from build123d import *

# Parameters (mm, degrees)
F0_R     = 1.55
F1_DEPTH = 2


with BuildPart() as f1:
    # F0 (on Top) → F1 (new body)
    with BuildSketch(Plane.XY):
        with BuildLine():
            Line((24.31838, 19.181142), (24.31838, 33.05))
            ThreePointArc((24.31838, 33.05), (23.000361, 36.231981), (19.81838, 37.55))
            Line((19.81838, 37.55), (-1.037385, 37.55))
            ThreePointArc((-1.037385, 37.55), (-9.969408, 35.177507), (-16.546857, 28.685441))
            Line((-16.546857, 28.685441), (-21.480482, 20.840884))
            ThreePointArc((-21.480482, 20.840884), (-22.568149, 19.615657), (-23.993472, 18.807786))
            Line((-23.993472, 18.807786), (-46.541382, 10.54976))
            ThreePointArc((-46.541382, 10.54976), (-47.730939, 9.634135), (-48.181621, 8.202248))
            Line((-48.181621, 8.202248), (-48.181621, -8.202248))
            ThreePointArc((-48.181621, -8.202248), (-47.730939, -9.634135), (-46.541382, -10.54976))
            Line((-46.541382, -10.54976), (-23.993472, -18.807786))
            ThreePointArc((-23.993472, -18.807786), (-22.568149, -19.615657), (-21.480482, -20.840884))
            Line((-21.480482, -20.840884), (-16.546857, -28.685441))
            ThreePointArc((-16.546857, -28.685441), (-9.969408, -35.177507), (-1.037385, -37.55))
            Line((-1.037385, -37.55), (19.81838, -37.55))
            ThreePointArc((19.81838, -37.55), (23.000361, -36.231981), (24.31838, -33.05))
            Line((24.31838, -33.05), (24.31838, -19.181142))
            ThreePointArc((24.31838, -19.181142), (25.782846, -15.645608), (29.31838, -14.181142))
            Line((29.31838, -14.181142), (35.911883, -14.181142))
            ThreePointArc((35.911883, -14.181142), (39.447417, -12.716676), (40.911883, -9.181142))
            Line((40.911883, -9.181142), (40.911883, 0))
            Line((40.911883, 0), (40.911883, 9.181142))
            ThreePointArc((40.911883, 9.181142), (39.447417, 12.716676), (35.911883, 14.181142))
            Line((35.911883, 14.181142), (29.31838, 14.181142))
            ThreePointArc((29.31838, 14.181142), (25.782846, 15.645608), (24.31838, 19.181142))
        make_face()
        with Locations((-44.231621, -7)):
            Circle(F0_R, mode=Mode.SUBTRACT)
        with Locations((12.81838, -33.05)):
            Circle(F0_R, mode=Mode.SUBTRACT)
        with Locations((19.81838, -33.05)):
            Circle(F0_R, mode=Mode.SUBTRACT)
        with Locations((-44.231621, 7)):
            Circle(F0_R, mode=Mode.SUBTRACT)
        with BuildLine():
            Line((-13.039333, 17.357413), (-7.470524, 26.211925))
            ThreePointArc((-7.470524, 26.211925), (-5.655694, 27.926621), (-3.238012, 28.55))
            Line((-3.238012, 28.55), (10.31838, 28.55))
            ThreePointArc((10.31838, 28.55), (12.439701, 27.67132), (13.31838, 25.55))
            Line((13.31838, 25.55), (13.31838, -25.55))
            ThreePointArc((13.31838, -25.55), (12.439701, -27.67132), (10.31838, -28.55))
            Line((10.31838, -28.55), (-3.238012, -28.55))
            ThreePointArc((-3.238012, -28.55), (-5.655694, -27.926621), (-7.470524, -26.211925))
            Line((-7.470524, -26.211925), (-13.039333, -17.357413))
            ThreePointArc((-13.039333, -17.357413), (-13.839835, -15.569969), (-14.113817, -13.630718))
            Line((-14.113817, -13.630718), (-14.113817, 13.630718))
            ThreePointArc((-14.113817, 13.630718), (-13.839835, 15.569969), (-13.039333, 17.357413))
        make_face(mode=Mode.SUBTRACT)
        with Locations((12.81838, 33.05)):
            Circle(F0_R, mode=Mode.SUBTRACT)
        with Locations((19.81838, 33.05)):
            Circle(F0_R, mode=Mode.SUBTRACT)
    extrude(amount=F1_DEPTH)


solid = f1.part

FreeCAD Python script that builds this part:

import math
import FreeCAD as App
import Part
import Sketcher
from FreeCAD import Vector
Q = App.Units.Quantity

doc = App.newDocument("Part")
body = doc.addObject("PartDesign::Body", "Body")

sketch1 = body.newObject("Sketcher::SketchObject", "Sketch")
sketch1.AttachmentSupport = (doc.getObject("XY_Plane"), [""])
sketch1.MapMode = "FlatFace"
sketch1.addGeometry([
    Part.LineSegment(Vector(24.31838, 19.181142, 0), Vector(24.31838, 33.05, 0)),
    Part.ArcOfCircle(Part.Circle(Vector(19.818382, 33.050002, 0), Vector(0, 0, 1), 4.499998), math.radians(-0.000021), math.radians(90.000021)),
    Part.LineSegment(Vector(19.81838, 37.55, 0), Vector(-1.037385, 37.55, 0)),
    Part.ArcOfCircle(Part.Circle(Vector(-1.037386, 19.550001, 0), Vector(0, 0, 1), 17.999999), math.radians(89.999997), math.radians(149.500924)),
    Part.LineSegment(Vector(-16.546857, 28.685441, 0), Vector(-21.480482, 20.840884, 0)),
    Part.ArcOfCircle(Part.Circle(Vector(-25.712992, 23.502808, 0), Vector(0, 0, 1), 4.999998), math.radians(-69.885085), math.radians(-32.166742)),
    Part.LineSegment(Vector(-23.993472, 18.807786, 0), Vector(-46.541382, 10.54976, 0)),
    Part.ArcOfCircle(Part.Circle(Vector(-45.681624, 8.202251, 0), Vector(0, 0, 1), 2.499997), math.radians(110.114877), math.radians(180.000061)),
    Part.LineSegment(Vector(-48.181621, 8.202248, 0), Vector(-48.181621, -8.202248, 0)),
    Part.ArcOfCircle(Part.Circle(Vector(-45.681624, -8.202251, 0), Vector(0, 0, 1), 2.499997), math.radians(179.999939), math.radians(249.885123)),
    Part.LineSegment(Vector(-46.541382, -10.54976, 0), Vector(-23.993472, -18.807786, 0)),
    Part.ArcOfCircle(Part.Circle(Vector(-25.712992, -23.502808, 0), Vector(0, 0, 1), 4.999998), math.radians(32.166742), math.radians(69.885085)),
    Part.LineSegment(Vector(-21.480482, -20.840884, 0), Vector(-16.546857, -28.685441, 0)),
    Part.ArcOfCircle(Part.Circle(Vector(-1.037386, -19.550001, 0), Vector(0, 0, 1), 17.999999), math.radians(-149.500924), math.radians(-89.999997)),
    Part.LineSegment(Vector(-1.037385, -37.55, 0), Vector(19.81838, -37.55, 0)),
    Part.ArcOfCircle(Part.Circle(Vector(19.818382, -33.050002, 0), Vector(0, 0, 1), 4.499998), math.radians(-90.000021), math.radians(0.000021)),
    Part.LineSegment(Vector(24.31838, -33.05, 0), Vector(24.31838, -19.181142, 0)),
    Part.ArcOfCircle(Part.Circle(Vector(29.31838, -19.181142, 0), Vector(0, 0, 1), 5), math.radians(89.999996), math.radians(180.000004)),
    Part.LineSegment(Vector(29.31838, -14.181142, 0), Vector(35.911883, -14.181142, 0)),
    Part.ArcOfCircle(Part.Circle(Vector(35.911883, -9.181142, 0), Vector(0, 0, 1), 5), math.radians(-90.000004), math.radians(0.000004)),
    Part.LineSegment(Vector(40.911883, -9.181142, 0), Vector(40.911883, 9.181142, 0)),
    Part.ArcOfCircle(Part.Circle(Vector(35.911883, 9.181142, 0), Vector(0, 0, 1), 5), math.radians(-0.000004), math.radians(90.000004)),
    Part.LineSegment(Vector(35.911883, 14.181142, 0), Vector(29.31838, 14.181142, 0)),
    Part.ArcOfCircle(Part.Circle(Vector(29.31838, 19.181142, 0), Vector(0, 0, 1), 5), math.radians(179.999996), math.radians(270.000004)),
    Part.Circle(Vector(-44.231621, -7, 0), Vector(0, 0, 1), 1.55),
    Part.Circle(Vector(12.81838, -33.05, 0), Vector(0, 0, 1), 1.55),
    Part.Circle(Vector(19.81838, -33.05, 0), Vector(0, 0, 1), 1.55),
    Part.Circle(Vector(-44.231621, 7, 0), Vector(0, 0, 1), 1.55),
    Part.ArcOfCircle(Part.Circle(Vector(-7.113843, 13.630725, 0), Vector(0, 0, 1), 6.999974), math.radians(147.833191), math.radians(180.000057)),
    Part.LineSegment(Vector(-13.039333, 17.357413, 0), Vector(-7.470524, 26.211925, 0)),
    Part.ArcOfCircle(Part.Circle(Vector(-3.238011, 23.549997, 0), Vector(0, 0, 1), 5.000003), math.radians(90.000014), math.radians(147.833241)),
    Part.LineSegment(Vector(-3.238012, 28.55, 0), Vector(10.31838, 28.55, 0)),
    Part.ArcOfCircle(Part.Circle(Vector(10.318381, 25.550001, 0), Vector(0, 0, 1), 2.999999), math.radians(-0.00001), math.radians(90.00001)),
    Part.LineSegment(Vector(13.31838, 25.55, 0), Vector(13.31838, -25.55, 0)),
    Part.ArcOfCircle(Part.Circle(Vector(10.318381, -25.550001, 0), Vector(0, 0, 1), 2.999999), math.radians(-90.00001), math.radians(0.00001)),
    Part.LineSegment(Vector(10.31838, -28.55, 0), Vector(-3.238012, -28.55, 0)),
    Part.ArcOfCircle(Part.Circle(Vector(-3.238011, -23.549997, 0), Vector(0, 0, 1), 5.000003), math.radians(-147.833241), math.radians(-90.000014)),
    Part.LineSegment(Vector(-7.470524, -26.211925, 0), Vector(-13.039333, -17.357413, 0)),
    Part.ArcOfCircle(Part.Circle(Vector(-7.113843, -13.630725, 0), Vector(0, 0, 1), 6.999974), math.radians(179.999943), math.radians(212.166809)),
    Part.LineSegment(Vector(-14.113817, -13.630718, 0), Vector(-14.113817, 13.630718, 0)),
    Part.Circle(Vector(12.81838, 33.05, 0), Vector(0, 0, 1), 1.55),
    Part.Circle(Vector(19.81838, 33.05, 0), Vector(0, 0, 1), 1.55),
], False)
sketch1.addConstraint([
    Sketcher.Constraint("Coincident", 0, 2, 1, 1),
    Sketcher.Constraint("Coincident", 1, 2, 2, 1),
    Sketcher.Constraint("Coincident", 2, 2, 3, 1),
    Sketcher.Constraint("Coincident", 3, 2, 4, 1),
    Sketcher.Constraint("Coincident", 4, 2, 5, 2),
    Sketcher.Constraint("Coincident", 5, 1, 6, 1),
    Sketcher.Constraint("Coincident", 6, 2, 7, 1),
    Sketcher.Constraint("Coincident", 7, 2, 8, 1),
    Sketcher.Constraint("Coincident", 8, 2, 9, 1),
    Sketcher.Constraint("Coincident", 9, 2, 10, 1),
    Sketcher.Constraint("Coincident", 10, 2, 11, 2),
    Sketcher.Constraint("Coincident", 11, 1, 12, 1),
    Sketcher.Constraint("Coincident", 12, 2, 13, 1),
    Sketcher.Constraint("Coincident", 13, 2, 14, 1),
    Sketcher.Constraint("Coincident", 14, 2, 15, 1),
    Sketcher.Constraint("Coincident", 15, 2, 16, 1),
    Sketcher.Constraint("Coincident", 16, 2, 17, 2),
    Sketcher.Constraint("Coincident", 17, 1, 18, 1),
    Sketcher.Constraint("Coincident", 18, 2, 19, 1),
    Sketcher.Constraint("Coincident", 19, 2, 20, 1),
    Sketcher.Constraint("Coincident", 20, 2, 21, 1),
    Sketcher.Constraint("Coincident", 21, 2, 22, 1),
    Sketcher.Constraint("Coincident", 22, 2, 23, 2),
    Sketcher.Constraint("Coincident", 23, 1, 0, 1),
    Sketcher.Constraint("Coincident", 28, 1, 29, 1),
    Sketcher.Constraint("Coincident", 29, 2, 30, 2),
    Sketcher.Constraint("Coincident", 30, 1, 31, 1),
    Sketcher.Constraint("Coincident", 31, 2, 32, 2),
    Sketcher.Constraint("Coincident", 32, 1, 33, 1),
    Sketcher.Constraint("Coincident", 33, 2, 34, 2),
    Sketcher.Constraint("Coincident", 34, 1, 35, 1),
    Sketcher.Constraint("Coincident", 35, 2, 36, 2),
    Sketcher.Constraint("Coincident", 36, 1, 37, 1),
    Sketcher.Constraint("Coincident", 37, 2, 38, 2),
    Sketcher.Constraint("Coincident", 38, 1, 39, 1),
    Sketcher.Constraint("Coincident", 39, 2, 28, 2),
    Sketcher.Constraint("Vertical", 0),
    Sketcher.Constraint("Horizontal", 2),
    Sketcher.Constraint("Vertical", 8),
    Sketcher.Constraint("Horizontal", 14),
    Sketcher.Constraint("Vertical", 16),
    Sketcher.Constraint("Horizontal", 18),
    Sketcher.Constraint("Vertical", 20),
    Sketcher.Constraint("Horizontal", 22),
    Sketcher.Constraint("Horizontal", 31),
    Sketcher.Constraint("Vertical", 33),
    Sketcher.Constraint("Horizontal", 35),
    Sketcher.Constraint("Vertical", 39),
    Sketcher.Constraint("Coincident", 26, 3, 15, 3),
    Sketcher.Constraint("Coincident", 41, 3, 1, 3),
    Sketcher.Constraint("Radius", 3, Q("17.999999 mm")),
    Sketcher.Constraint("Radius", 5, Q("4.999998 mm")),
    Sketcher.Constraint("Radius", 11, Q("4.999998 mm")),
    Sketcher.Constraint("Radius", 13, Q("17.999999 mm")),
    Sketcher.Constraint("Radius", 17, Q("5 mm")),
    Sketcher.Constraint("Radius", 19, Q("5 mm")),
    Sketcher.Constraint("Radius", 21, Q("5 mm")),
    Sketcher.Constraint("Radius", 23, Q("5 mm")),
    Sketcher.Constraint("Radius", 32, Q("2.999999 mm")),
    Sketcher.Constraint("Radius", 34, Q("2.999999 mm")),
    Sketcher.Constraint("Diameter", 24, Q("3.1 mm")),
    Sketcher.Constraint("Diameter", 25, Q("3.1 mm")),
    Sketcher.Constraint("Diameter", 26, Q("3.1 mm")),
    Sketcher.Constraint("Diameter", 27, Q("3.1 mm")),
    Sketcher.Constraint("Diameter", 40, Q("3.1 mm")),
    Sketcher.Constraint("Diameter", 41, Q("3.1 mm")),
    Sketcher.Constraint("Radius", 1, Q("4.499998 mm")),
    Sketcher.Constraint("Radius", 15, Q("4.499998 mm")),
    Sketcher.Constraint("DistanceY", 33, 2, 33, 1, Q("51.1 mm")),
    Sketcher.Constraint("DistanceY", 24, 3, -1, 1, Q("7 mm")),
    Sketcher.Constraint("DistanceY", -1, 1, 27, 3, Q("7 mm")),
    Sketcher.Constraint("DistanceX", 25, 3, 15, 3, Q("7.000002 mm")),
    Sketcher.Constraint("DistanceY", 3, 3, 32, 3, Q("5.999999 mm")),
    Sketcher.Constraint("DistanceX", 32, 3, 23, 3, Q("18.999999 mm")),
    Sketcher.Constraint("DistanceY", 34, 3, 13, 3, Q("5.999999 mm")),
    Sketcher.Constraint("DistanceX", 34, 3, 17, 3, Q("18.999999 mm")),
    Sketcher.Constraint("DistanceX", 40, 3, 1, 3, Q("7.000002 mm")),
    Sketcher.Constraint("DistanceX", 40, 3, 1, 2, Q("7 mm")),
    Sketcher.Constraint("DistanceX", 25, 3, 14, 2, Q("7 mm")),
    Sketcher.Constraint("DistanceY", 16, 2, 19, 3, Q("10 mm")),
    Sketcher.Constraint("DistanceX", 16, 2, 17, 1, Q("5 mm")),
    Sketcher.Constraint("DistanceX", 18, 2, 19, 2, Q("5 mm")),
    Sketcher.Constraint("DistanceY", 18, 2, 19, 2, Q("5 mm")),
    Sketcher.Constraint("DistanceY", 20, 2, 23, 3, Q("10 mm")),
    Sketcher.Constraint("DistanceX", 21, 2, 20, 2, Q("5 mm")),
    Sketcher.Constraint("DistanceX", 0, 2, 22, 2, Q("5 mm")),
    Sketcher.Constraint("DistanceY", 22, 2, 23, 1, Q("5 mm")),
    Sketcher.Constraint("DistanceX", 31, 2, 32, 1, Q("3 mm")),
    Sketcher.Constraint("DistanceY", 32, 1, 31, 2, Q("3 mm")),
    Sketcher.Constraint("DistanceX", 34, 1, 33, 2, Q("3 mm")),
    Sketcher.Constraint("DistanceY", 34, 1, 33, 2, Q("3 mm")),
    Sketcher.Constraint("DistanceY", 25, 3, 13, 3, Q("13.499999 mm")),
    Sketcher.Constraint("DistanceY", 32, 3, 40, 3, Q("7.499999 mm")),
    Sketcher.Constraint("DistanceY", 32, 3, 0, 2, Q("7.499999 mm")),
    Sketcher.Constraint("DistanceY", 14, 2, 15, 2, Q("4.5 mm")),
    Sketcher.Constraint("DistanceY", -1, 1, 1, 3, Q("33.050002 mm")),
    Sketcher.Constraint("DistanceX", 7, 2, 27, 3, Q("3.95 mm")),
    Sketcher.Constraint("DistanceX", 7, 2, 24, 3, Q("3.95 mm")),
    Sketcher.Constraint("Radius", 7, Q("2.499997 mm")),
    Sketcher.Constraint("Radius", 9, Q("2.499997 mm")),
    Sketcher.Constraint("Radius", 28, Q("6.999974 mm")),
    Sketcher.Constraint("Radius", 30, Q("5.000003 mm")),
    Sketcher.Constraint("Radius", 36, Q("5.000003 mm")),
    Sketcher.Constraint("Radius", 38, Q("6.999974 mm")),
    Sketcher.Constraint("DistanceX", 31, 1, 31, 2, Q("13.556392 mm")),
    Sketcher.Constraint("DistanceX", 35, 2, 35, 1, Q("13.556392 mm")),
    Sketcher.Constraint("DistanceY", 9, 3, 7, 3, Q("16.404501 mm")),
    Sketcher.Constraint("DistanceX", 15, 3, 19, 3, Q("16.093502 mm")),
    Sketcher.Constraint("DistanceY", 9, 3, 7, 2, Q("16.404499 mm")),
    Sketcher.Constraint("DistanceY", 8, 2, 7, 3, Q("16.404499 mm")),
    Sketcher.Constraint("DistanceY", 11, 1, 10, 2, Q("2.033098 mm")),
    Sketcher.Constraint("DistanceY", 28, 3, 29, 2, Q("12.5812 mm")),
    Sketcher.Constraint("DistanceY", 36, 1, 38, 3, Q("12.5812 mm")),
    Sketcher.Constraint("DistanceX", 2, 2, 2, 1, Q("20.855765 mm")),
    Sketcher.Constraint("DistanceX", 14, 1, 14, 2, Q("20.855765 mm")),
    Sketcher.Constraint("DistanceY", 0, 1, 0, 2, Q("13.868858 mm")),
    Sketcher.Constraint("DistanceY", 16, 1, 16, 2, Q("13.868858 mm")),
    Sketcher.Constraint("DistanceY", 39, 1, 39, 2, Q("27.261436 mm")),
    Sketcher.Constraint("DistanceX", -1, 1, 1, 3, Q("19.818382 mm")),
    Sketcher.Constraint("DistanceY", -1, 1, 5, 3, Q("23.502808 mm")),
    Sketcher.Constraint("DistanceY", -1, 1, 7, 3, Q("8.202251 mm")),
    Sketcher.Constraint("DistanceY", 11, 3, -1, 1, Q("23.502808 mm")),
    Sketcher.Constraint("DistanceX", 24, 3, -1, 1, Q("44.231621 mm")),
    Sketcher.Constraint("DistanceX", 30, 3, -1, 1, Q("3.238011 mm")),
    Sketcher.Constraint("DistanceX", 36, 3, -1, 1, Q("3.238011 mm")),
    Sketcher.Constraint("DistanceY", -1, 1, 3, 2, Q("28.685441 mm")),
    Sketcher.Constraint("DistanceX", 4, 2, -1, 1, Q("21.480482 mm")),
    Sketcher.Constraint("DistanceY", -1, 1, 6, 2, Q("10.54976 mm")),
    Sketcher.Constraint("DistanceX", 9, 2, -1, 1, Q("46.541382 mm")),
    Sketcher.Constraint("DistanceY", 12, 2, -1, 1, Q("28.685441 mm")),
    Sketcher.Constraint("DistanceX", 7, 3, 3, 3, Q("44.644238 mm")),
    Sketcher.Constraint("DistanceX", 9, 3, 13, 3, Q("44.644238 mm")),
    Sketcher.Constraint("DistanceX", 11, 3, 17, 3, Q("55.031372 mm")),
    Sketcher.Constraint("DistanceX", 24, 3, 5, 3, Q("18.518629 mm")),
    Sketcher.Constraint("DistanceX", 5, 3, 28, 3, Q("18.599149 mm")),
    Sketcher.Constraint("DistanceY", 38, 3, 28, 3, Q("27.26145 mm")),
    Sketcher.Constraint("DistanceY", 28, 3, 4, 2, Q("7.210159 mm")),
    Sketcher.Constraint("DistanceX", 5, 1, 4, 2, Q("2.51299 mm")),
    Sketcher.Constraint("DistanceX", 11, 3, 10, 2, Q("1.71952 mm")),
    Sketcher.Constraint("DistanceX", 28, 1, 28, 3, Q("5.92549 mm")),
    Sketcher.Constraint("DistanceX", 37, 2, 38, 3, Q("5.92549 mm")),
    Sketcher.Constraint("DistanceY", 10, 2, 38, 1, Q("5.177068 mm")),
])
pad1 = body.newObject("PartDesign::Pad", "Pad")
pad1.Profile = sketch1
pad1.Length = 2

doc.recompute()
